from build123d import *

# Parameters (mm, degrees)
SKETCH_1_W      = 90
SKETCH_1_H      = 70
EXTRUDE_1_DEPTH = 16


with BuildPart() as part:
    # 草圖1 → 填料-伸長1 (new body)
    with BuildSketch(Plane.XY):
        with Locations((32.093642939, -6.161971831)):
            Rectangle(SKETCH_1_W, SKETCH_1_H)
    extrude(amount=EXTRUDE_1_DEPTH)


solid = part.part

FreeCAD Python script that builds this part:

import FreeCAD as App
import Part
import Sketcher

V = App.Vector
Q = App.Units.Quantity

doc = App.newDocument("Part")
body = doc.addObject("PartDesign::Body", "Body")

# Sketch on XY plane
sketch1 = body.newObject("Sketcher::SketchObject", "Sketch")
sketch1.AttachmentSupport = (doc.getObject("XY_Plane"), [""])
sketch1.MapMode = "FlatFace"
sketch1.addGeometry(Part.LineSegment(V(-13, 29, 0), V(-13, -41, 0)), False)
sketch1.addGeometry(Part.LineSegment(V(-13, -41, 0), V(77, -41, 0)), False)
sketch1.addGeometry(Part.LineSegment(V(77, -41, 0), V(77, 29, 0)), False)
sketch1.addGeometry(Part.LineSegment(V(77, 29, 0), V(-13, 29, 0)), False)
sketch1.addConstraint(Sketcher.Constraint("Coincident", 0, 2, 1, 1))
sketch1.addConstraint(Sketcher.Constraint("Coincident", 1, 2, 2, 1))
sketch1.addConstraint(Sketcher.Constraint("Coincident", 2, 2, 3, 1))
sketch1.addConstraint(Sketcher.Constraint("Coincident", 3, 2, 0, 1))
sketch1.addConstraint(Sketcher.Constraint("Vertical", 0))
sketch1.addConstraint(Sketcher.Constraint("Horizontal", 1))
sketch1.addConstraint(Sketcher.Constraint("Vertical", 2))
sketch1.addConstraint(Sketcher.Constraint("Horizontal", 3))
sketch1.addConstraint(Sketcher.Constraint("DistanceX", 1, 1, 1, 2, Q("90 mm")))
sketch1.addConstraint(Sketcher.Constraint("DistanceY", 0, 2, 0, 1, Q("70 mm")))
sketch1.addConstraint(Sketcher.Constraint("DistanceY", 0, 2, -1, 1, Q("41.161972 mm")))
sketch1.addConstraint(Sketcher.Constraint("DistanceX", 0, 2, -1, 1, Q("12.906357 mm")))
pad1 = body.newObject("PartDesign::Pad", "Pad")
pad1.Profile = sketch1
pad1.Length = 16

doc.recompute()
